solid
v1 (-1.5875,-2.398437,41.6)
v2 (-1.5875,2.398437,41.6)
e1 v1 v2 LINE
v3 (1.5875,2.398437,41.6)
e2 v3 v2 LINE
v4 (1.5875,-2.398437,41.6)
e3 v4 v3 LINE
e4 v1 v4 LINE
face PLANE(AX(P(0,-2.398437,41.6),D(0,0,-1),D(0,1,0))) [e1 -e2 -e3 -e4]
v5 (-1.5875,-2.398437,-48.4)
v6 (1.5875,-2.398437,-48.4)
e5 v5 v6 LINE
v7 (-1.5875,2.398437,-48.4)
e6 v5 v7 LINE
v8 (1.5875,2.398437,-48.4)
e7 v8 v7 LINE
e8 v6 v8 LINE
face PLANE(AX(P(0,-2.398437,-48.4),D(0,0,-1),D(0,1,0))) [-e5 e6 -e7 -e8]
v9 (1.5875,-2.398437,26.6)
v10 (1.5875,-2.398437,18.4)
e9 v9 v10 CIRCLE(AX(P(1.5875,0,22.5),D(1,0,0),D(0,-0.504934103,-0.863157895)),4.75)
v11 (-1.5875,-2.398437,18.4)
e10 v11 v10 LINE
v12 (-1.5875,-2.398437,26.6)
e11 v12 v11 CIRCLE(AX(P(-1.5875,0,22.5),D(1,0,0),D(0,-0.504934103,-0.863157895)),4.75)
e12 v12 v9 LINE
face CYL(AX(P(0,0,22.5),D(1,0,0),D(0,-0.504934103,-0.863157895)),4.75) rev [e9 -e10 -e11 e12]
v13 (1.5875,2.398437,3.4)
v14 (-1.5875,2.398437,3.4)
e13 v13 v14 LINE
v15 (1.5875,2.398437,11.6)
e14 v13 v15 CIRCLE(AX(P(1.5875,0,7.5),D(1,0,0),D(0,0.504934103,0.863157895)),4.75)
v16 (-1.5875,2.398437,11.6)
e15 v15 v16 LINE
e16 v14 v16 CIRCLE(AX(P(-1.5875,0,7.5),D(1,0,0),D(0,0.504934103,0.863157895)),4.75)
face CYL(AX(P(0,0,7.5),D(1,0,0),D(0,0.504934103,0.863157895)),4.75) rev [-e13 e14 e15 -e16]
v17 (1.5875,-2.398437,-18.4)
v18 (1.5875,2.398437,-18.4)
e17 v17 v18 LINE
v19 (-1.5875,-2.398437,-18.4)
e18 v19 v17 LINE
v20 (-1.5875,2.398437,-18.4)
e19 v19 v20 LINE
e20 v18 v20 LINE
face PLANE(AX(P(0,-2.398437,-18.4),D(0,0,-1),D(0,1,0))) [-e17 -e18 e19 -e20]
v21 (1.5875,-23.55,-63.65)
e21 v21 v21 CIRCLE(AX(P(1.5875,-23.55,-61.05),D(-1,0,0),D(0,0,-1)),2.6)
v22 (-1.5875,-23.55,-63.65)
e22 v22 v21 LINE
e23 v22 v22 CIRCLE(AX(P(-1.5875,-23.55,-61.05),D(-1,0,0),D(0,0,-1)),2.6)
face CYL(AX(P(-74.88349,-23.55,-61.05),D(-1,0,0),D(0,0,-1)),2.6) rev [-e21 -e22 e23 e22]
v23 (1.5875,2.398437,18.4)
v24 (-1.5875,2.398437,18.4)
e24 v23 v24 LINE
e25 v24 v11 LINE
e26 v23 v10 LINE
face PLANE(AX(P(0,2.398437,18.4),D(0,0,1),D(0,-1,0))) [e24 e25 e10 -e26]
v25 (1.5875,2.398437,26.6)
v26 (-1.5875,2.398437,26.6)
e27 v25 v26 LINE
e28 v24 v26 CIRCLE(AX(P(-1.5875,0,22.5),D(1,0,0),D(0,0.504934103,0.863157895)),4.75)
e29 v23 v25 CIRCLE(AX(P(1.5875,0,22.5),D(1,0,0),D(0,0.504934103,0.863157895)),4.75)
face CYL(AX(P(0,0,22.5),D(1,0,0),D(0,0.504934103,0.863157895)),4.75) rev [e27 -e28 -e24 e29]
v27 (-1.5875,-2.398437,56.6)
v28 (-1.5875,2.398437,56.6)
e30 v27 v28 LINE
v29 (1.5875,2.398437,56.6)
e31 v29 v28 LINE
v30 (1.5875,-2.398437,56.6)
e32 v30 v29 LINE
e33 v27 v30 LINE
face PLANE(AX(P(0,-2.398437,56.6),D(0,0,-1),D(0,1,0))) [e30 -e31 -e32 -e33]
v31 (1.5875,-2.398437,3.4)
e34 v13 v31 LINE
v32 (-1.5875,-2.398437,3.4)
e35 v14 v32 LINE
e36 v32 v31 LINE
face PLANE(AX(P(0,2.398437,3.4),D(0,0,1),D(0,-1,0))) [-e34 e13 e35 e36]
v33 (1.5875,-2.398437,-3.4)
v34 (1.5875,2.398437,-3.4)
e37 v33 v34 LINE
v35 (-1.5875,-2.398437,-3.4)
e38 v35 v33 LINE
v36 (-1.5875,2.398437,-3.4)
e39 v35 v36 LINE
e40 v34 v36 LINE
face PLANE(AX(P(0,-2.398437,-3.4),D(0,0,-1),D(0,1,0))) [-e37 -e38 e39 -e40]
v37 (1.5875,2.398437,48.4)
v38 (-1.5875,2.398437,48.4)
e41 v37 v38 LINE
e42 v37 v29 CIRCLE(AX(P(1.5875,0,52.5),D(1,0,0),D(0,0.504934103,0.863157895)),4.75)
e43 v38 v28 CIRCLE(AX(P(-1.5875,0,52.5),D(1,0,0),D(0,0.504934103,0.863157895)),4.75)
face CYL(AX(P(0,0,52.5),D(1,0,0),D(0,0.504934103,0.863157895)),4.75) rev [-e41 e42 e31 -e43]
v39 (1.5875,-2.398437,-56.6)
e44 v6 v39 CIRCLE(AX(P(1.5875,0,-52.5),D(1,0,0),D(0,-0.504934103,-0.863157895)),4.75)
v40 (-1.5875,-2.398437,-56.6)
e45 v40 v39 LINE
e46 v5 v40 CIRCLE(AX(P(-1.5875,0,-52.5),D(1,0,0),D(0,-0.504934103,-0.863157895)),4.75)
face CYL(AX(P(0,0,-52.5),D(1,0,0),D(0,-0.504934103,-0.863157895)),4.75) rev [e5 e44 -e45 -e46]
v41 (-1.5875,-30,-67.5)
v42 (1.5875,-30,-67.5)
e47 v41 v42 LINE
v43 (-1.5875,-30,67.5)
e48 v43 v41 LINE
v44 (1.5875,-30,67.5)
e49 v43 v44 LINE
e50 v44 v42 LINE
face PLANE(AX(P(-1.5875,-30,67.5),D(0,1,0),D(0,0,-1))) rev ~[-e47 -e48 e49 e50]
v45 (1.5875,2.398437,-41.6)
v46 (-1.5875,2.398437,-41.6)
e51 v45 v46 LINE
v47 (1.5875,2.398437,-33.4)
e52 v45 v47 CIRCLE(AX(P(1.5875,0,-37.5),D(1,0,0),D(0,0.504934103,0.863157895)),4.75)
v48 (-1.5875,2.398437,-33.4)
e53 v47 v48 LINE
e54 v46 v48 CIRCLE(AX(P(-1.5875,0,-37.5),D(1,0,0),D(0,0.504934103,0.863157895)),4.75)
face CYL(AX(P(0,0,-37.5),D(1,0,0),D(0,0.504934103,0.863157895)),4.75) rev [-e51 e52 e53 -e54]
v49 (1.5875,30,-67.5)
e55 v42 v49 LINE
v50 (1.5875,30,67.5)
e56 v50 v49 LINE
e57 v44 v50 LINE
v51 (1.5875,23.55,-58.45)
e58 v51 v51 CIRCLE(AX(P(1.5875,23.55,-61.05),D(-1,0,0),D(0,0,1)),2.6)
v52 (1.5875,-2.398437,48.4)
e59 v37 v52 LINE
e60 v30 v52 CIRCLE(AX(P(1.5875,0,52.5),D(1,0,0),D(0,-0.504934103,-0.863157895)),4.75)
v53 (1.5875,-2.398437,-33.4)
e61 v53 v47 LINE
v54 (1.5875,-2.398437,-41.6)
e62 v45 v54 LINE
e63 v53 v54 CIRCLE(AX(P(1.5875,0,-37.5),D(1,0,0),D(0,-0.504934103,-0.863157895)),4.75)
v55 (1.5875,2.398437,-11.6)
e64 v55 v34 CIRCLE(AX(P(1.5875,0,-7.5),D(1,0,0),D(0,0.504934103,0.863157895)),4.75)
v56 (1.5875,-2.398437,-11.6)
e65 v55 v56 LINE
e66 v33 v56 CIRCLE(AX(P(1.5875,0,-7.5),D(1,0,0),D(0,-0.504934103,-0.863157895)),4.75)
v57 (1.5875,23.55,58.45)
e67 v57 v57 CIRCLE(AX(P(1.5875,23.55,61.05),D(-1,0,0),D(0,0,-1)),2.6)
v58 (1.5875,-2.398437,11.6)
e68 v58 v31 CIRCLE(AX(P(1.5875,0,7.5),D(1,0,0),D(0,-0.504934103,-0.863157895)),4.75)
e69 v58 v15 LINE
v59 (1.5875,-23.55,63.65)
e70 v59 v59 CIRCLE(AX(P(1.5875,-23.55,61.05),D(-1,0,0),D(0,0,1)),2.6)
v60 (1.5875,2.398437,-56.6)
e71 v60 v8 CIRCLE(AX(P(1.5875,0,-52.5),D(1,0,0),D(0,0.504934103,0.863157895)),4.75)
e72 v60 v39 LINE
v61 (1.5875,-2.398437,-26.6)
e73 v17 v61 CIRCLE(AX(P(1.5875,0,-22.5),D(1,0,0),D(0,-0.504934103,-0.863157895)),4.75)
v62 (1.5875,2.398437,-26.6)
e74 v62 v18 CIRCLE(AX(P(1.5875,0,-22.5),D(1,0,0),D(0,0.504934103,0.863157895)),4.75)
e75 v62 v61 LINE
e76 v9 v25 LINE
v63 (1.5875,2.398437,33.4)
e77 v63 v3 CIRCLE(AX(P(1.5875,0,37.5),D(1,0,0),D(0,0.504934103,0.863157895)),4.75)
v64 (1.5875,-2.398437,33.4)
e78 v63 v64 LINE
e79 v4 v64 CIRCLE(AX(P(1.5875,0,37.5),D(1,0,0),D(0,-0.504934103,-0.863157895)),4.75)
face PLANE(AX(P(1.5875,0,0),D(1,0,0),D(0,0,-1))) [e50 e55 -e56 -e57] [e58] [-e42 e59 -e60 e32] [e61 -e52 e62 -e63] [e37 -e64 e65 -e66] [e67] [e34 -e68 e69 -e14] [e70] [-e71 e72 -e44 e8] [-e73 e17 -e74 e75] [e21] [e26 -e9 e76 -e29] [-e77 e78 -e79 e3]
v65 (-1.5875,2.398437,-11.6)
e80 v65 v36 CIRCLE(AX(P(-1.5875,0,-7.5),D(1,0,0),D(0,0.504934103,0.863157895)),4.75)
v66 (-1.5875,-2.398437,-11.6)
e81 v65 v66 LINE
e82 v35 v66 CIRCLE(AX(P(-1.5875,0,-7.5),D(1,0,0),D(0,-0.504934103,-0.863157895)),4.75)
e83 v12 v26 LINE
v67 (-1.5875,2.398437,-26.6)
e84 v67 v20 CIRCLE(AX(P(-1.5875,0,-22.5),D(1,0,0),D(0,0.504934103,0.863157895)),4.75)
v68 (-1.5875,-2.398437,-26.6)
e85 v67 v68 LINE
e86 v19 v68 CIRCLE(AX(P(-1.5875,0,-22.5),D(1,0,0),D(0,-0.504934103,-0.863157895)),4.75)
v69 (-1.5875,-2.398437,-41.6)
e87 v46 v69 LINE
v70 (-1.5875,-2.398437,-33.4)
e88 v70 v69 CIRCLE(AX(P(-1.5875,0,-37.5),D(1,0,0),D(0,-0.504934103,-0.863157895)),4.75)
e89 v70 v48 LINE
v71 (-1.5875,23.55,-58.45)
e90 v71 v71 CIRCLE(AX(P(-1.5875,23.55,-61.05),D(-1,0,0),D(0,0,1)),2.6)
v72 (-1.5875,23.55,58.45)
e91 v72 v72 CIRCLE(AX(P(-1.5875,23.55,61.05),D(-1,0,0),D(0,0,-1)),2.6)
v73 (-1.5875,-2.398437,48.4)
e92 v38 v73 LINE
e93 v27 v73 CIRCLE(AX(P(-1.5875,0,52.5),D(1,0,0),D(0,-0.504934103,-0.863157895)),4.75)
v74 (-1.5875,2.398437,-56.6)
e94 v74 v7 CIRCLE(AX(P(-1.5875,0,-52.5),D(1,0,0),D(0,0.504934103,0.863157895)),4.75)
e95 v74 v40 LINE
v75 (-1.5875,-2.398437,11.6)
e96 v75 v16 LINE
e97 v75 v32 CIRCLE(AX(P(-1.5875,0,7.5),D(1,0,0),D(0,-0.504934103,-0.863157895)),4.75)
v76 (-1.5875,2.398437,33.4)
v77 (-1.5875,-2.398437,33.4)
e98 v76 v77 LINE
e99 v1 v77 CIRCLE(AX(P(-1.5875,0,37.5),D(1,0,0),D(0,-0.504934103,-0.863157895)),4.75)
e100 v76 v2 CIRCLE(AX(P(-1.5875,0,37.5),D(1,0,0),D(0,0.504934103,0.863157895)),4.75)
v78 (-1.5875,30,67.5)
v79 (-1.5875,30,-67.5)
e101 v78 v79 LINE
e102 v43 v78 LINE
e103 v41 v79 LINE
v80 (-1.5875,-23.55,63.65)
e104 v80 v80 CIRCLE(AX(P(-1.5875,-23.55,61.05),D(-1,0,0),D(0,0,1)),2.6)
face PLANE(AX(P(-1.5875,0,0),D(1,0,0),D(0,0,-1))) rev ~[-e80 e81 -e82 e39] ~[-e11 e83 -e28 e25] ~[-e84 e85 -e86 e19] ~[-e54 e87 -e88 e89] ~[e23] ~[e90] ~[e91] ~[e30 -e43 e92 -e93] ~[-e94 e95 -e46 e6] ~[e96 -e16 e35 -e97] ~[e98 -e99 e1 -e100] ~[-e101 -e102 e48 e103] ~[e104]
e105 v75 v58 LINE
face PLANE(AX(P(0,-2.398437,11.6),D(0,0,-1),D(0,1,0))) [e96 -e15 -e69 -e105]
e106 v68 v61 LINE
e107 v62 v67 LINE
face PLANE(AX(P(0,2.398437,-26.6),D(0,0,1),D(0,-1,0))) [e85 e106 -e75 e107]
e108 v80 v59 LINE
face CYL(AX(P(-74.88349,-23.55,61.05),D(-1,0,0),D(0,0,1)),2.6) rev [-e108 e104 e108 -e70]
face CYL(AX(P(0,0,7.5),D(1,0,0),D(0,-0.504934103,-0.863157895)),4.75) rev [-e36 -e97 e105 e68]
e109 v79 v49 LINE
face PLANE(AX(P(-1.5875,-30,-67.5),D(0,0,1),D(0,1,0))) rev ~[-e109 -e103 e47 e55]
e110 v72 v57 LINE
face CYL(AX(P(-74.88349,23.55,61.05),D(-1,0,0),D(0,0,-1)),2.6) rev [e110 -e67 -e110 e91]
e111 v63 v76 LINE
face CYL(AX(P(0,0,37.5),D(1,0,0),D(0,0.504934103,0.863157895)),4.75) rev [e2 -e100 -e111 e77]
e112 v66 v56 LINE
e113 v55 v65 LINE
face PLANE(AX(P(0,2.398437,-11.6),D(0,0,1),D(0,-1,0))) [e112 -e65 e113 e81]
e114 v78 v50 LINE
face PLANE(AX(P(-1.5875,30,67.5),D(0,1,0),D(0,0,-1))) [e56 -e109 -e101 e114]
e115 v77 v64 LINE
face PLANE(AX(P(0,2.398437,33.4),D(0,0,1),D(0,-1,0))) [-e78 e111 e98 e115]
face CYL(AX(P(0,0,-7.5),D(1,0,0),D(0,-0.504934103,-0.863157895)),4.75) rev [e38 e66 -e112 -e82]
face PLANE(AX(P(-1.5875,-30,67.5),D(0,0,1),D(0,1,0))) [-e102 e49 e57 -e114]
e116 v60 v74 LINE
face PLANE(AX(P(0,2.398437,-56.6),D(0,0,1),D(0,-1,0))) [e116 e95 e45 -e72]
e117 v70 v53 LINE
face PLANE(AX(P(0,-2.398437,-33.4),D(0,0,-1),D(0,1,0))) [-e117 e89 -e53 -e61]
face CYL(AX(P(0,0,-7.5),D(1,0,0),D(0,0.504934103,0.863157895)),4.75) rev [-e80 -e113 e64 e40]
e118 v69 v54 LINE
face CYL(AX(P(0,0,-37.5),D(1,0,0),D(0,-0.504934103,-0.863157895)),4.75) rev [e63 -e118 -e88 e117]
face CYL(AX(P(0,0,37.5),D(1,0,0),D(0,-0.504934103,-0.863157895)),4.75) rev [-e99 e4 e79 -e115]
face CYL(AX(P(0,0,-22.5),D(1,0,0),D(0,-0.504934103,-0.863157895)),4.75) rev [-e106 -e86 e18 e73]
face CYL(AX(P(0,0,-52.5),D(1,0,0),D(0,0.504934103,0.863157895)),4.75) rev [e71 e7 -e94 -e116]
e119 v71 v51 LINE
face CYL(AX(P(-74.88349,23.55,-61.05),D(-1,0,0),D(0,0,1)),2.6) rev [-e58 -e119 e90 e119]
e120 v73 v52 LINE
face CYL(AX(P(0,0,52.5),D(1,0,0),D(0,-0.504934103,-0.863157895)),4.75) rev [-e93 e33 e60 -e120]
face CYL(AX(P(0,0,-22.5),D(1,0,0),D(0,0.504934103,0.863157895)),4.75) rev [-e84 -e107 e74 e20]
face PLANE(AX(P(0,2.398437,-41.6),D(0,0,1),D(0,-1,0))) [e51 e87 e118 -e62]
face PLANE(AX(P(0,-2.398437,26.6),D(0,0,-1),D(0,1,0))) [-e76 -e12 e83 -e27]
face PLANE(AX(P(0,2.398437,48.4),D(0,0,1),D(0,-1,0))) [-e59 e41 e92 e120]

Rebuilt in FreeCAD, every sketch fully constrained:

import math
import FreeCAD as App
import Part
import Sketcher


def add_polygon(sketch, points):
    """Adds a closed chain of lines whose ends are joined by coincident constraints."""
    first, n = sketch.GeometryCount, len(points)
    for a, b in zip(points, points[1:] + points[:1]):
        sketch.addGeometry(Part.LineSegment(App.Vector(*a, 0), App.Vector(*b, 0)), False)
    for i in range(n):
        sketch.addConstraint(Sketcher.Constraint("Coincident", first + i, 2, first + (i + 1) % n, 1))

doc = App.newDocument("Part")
body = doc.addObject("PartDesign::Body", "Body")

sketch1 = body.newObject("Sketcher::SketchObject", "Sketch")
sketch1.AttachmentSupport = (doc.getObject("YZ_Plane"), [""])
sketch1.MapMode = "FlatFace"
add_polygon(sketch1, [(30, 67.5), (-30, 67.5), (-30, -67.5), (30, -67.5)])
sketch1.addConstraint(Sketcher.Constraint("Horizontal", 0))
sketch1.addConstraint(Sketcher.Constraint("Vertical", 1))
sketch1.addConstraint(Sketcher.Constraint("Horizontal", 2))
sketch1.addConstraint(Sketcher.Constraint("Vertical", 3))
sketch1.addConstraint(Sketcher.Constraint("Symmetric", 0, 2, 2, 2, -1, 1))
sketch1.addConstraint(Sketcher.Constraint("DistanceX", 0, 2, 0, 1, 60.0))
sketch1.addConstraint(Sketcher.Constraint("DistanceY", 1, 2, 1, 1, 135.0))
pad1 = body.newObject("PartDesign::Pad", "Pad")
pad1.Profile = sketch1
pad1.Type = "TwoLengths"
pad1.Length = 1.5875
pad1.Length2 = 1.5875

sketch2 = body.newObject("Sketcher::SketchObject", "Sketch001")
sketch2.AttachmentSupport = (doc.getObject("YZ_Plane"), [""])
sketch2.MapMode = "FlatFace"
sketch2.addGeometry(Part.Circle(App.Vector(23.55, 61.05, 0), App.Vector(0, 0, 1), 2.6), False)
sketch2.addGeometry(Part.Circle(App.Vector(23.55, -61.05, 0), App.Vector(0, 0, 1), 2.6), False)
sketch2.addGeometry(Part.Circle(App.Vector(-23.55, -61.05, 0), App.Vector(0, 0, 1), 2.6), False)
sketch2.addGeometry(Part.Circle(App.Vector(-23.55, 61.05, 0), App.Vector(0, 0, 1), 2.6), False)
sketch2.addConstraint(Sketcher.Constraint("Equal", 0, 1))
sketch2.addConstraint(Sketcher.Constraint("Equal", 1, 2))
sketch2.addConstraint(Sketcher.Constraint("Equal", 2, 3))
sketch2.addConstraint(Sketcher.Constraint("Symmetric", 0, 3, 2, 3, -1, 1))
sketch2.addConstraint(Sketcher.Constraint("Symmetric", 1, 3, 3, 3, -1, 1))
sketch2.addConstraint(Sketcher.Constraint("Symmetric", 1, 3, 2, 3, -2))
sketch2.addConstraint(Sketcher.Constraint("Diameter", 0, 5.2))
sketch2.addConstraint(Sketcher.Constraint("DistanceY", 1, 3, 0, 3, 122.1))
sketch2.addConstraint(Sketcher.Constraint("DistanceX", 2, 3, 1, 3, 47.1))
pocket1 = body.newObject("PartDesign::Pocket", "Pocket")
pocket1.Profile = sketch2
pocket1.Type = "ThroughAll"
pocket1.Midplane = True

sketch3 = body.newObject("Sketcher::SketchObject", "Sketch002")
sketch3.AttachmentSupport = (doc.getObject("YZ_Plane"), [""])
sketch3.MapMode = "FlatFace"
sketch3.addGeometry(Part.LineSegment(App.Vector(2.398437, 56.6, 0), App.Vector(-2.398437, 56.6, 0)), False)
sketch3.addGeometry(Part.ArcOfCircle(Part.Circle(App.Vector(0, 52.5, 0), App.Vector(0, 0, 1), 4.75), math.radians(120.326978), math.radians(239.673022)), False)
sketch3.addGeometry(Part.LineSegment(App.Vector(-2.398437, 48.4, 0), App.Vector(2.398437, 48.4, 0)), False)
sketch3.addGeometry(Part.ArcOfCircle(Part.Circle(App.Vector(0, 52.5, 0), App.Vector(0, 0, 1), 4.75), math.radians(-59.673022), math.radians(59.673022)), False)
sketch3.addConstraint(Sketcher.Constraint("Coincident", 0, 2, 1, 1))
sketch3.addConstraint(Sketcher.Constraint("Coincident", 1, 2, 2, 1))
sketch3.addConstraint(Sketcher.Constraint("Coincident", 2, 2, 3, 1))
sketch3.addConstraint(Sketcher.Constraint("Coincident", 3, 2, 0, 1))
sketch3.addConstraint(Sketcher.Constraint("Horizontal", 0))
sketch3.addConstraint(Sketcher.Constraint("Horizontal", 2))
sketch3.addConstraint(Sketcher.Constraint("Coincident", 3, 3, 1, 3))
sketch3.addConstraint(Sketcher.Constraint("Equal", 1, 3))
sketch3.addConstraint(Sketcher.Constraint("PointOnObject", 1, 3, -2))
sketch3.addConstraint(Sketcher.Constraint("Vertical", 0, 2, 1, 2))
sketch3.addConstraint(Sketcher.Constraint("Radius", 1, 4.75))
sketch3.addConstraint(Sketcher.Constraint("DistanceY", -1, 1, 1, 3, 52.5))
sketch3.addConstraint(Sketcher.Constraint("DistanceY", -1, 1, 0, 2, 56.6))
pocket2 = body.newObject("PartDesign::Pocket", "Pocket001")
pocket2.Profile = sketch3
pocket2.Length = 149.766981
pocket2.Midplane = True
doc.recompute()

linearpattern = body.newObject("PartDesign::LinearPattern", "LinearPattern")
linearpattern.Originals = [pocket2]
linearpattern.Direction = (doc.getObject("Z_Axis"), [""])
linearpattern.Mode = "offset"
linearpattern.Offset = 15
linearpattern.Occurrences = 8
linearpattern.Reversed = True
body.Tip = linearpattern

doc.recompute()
